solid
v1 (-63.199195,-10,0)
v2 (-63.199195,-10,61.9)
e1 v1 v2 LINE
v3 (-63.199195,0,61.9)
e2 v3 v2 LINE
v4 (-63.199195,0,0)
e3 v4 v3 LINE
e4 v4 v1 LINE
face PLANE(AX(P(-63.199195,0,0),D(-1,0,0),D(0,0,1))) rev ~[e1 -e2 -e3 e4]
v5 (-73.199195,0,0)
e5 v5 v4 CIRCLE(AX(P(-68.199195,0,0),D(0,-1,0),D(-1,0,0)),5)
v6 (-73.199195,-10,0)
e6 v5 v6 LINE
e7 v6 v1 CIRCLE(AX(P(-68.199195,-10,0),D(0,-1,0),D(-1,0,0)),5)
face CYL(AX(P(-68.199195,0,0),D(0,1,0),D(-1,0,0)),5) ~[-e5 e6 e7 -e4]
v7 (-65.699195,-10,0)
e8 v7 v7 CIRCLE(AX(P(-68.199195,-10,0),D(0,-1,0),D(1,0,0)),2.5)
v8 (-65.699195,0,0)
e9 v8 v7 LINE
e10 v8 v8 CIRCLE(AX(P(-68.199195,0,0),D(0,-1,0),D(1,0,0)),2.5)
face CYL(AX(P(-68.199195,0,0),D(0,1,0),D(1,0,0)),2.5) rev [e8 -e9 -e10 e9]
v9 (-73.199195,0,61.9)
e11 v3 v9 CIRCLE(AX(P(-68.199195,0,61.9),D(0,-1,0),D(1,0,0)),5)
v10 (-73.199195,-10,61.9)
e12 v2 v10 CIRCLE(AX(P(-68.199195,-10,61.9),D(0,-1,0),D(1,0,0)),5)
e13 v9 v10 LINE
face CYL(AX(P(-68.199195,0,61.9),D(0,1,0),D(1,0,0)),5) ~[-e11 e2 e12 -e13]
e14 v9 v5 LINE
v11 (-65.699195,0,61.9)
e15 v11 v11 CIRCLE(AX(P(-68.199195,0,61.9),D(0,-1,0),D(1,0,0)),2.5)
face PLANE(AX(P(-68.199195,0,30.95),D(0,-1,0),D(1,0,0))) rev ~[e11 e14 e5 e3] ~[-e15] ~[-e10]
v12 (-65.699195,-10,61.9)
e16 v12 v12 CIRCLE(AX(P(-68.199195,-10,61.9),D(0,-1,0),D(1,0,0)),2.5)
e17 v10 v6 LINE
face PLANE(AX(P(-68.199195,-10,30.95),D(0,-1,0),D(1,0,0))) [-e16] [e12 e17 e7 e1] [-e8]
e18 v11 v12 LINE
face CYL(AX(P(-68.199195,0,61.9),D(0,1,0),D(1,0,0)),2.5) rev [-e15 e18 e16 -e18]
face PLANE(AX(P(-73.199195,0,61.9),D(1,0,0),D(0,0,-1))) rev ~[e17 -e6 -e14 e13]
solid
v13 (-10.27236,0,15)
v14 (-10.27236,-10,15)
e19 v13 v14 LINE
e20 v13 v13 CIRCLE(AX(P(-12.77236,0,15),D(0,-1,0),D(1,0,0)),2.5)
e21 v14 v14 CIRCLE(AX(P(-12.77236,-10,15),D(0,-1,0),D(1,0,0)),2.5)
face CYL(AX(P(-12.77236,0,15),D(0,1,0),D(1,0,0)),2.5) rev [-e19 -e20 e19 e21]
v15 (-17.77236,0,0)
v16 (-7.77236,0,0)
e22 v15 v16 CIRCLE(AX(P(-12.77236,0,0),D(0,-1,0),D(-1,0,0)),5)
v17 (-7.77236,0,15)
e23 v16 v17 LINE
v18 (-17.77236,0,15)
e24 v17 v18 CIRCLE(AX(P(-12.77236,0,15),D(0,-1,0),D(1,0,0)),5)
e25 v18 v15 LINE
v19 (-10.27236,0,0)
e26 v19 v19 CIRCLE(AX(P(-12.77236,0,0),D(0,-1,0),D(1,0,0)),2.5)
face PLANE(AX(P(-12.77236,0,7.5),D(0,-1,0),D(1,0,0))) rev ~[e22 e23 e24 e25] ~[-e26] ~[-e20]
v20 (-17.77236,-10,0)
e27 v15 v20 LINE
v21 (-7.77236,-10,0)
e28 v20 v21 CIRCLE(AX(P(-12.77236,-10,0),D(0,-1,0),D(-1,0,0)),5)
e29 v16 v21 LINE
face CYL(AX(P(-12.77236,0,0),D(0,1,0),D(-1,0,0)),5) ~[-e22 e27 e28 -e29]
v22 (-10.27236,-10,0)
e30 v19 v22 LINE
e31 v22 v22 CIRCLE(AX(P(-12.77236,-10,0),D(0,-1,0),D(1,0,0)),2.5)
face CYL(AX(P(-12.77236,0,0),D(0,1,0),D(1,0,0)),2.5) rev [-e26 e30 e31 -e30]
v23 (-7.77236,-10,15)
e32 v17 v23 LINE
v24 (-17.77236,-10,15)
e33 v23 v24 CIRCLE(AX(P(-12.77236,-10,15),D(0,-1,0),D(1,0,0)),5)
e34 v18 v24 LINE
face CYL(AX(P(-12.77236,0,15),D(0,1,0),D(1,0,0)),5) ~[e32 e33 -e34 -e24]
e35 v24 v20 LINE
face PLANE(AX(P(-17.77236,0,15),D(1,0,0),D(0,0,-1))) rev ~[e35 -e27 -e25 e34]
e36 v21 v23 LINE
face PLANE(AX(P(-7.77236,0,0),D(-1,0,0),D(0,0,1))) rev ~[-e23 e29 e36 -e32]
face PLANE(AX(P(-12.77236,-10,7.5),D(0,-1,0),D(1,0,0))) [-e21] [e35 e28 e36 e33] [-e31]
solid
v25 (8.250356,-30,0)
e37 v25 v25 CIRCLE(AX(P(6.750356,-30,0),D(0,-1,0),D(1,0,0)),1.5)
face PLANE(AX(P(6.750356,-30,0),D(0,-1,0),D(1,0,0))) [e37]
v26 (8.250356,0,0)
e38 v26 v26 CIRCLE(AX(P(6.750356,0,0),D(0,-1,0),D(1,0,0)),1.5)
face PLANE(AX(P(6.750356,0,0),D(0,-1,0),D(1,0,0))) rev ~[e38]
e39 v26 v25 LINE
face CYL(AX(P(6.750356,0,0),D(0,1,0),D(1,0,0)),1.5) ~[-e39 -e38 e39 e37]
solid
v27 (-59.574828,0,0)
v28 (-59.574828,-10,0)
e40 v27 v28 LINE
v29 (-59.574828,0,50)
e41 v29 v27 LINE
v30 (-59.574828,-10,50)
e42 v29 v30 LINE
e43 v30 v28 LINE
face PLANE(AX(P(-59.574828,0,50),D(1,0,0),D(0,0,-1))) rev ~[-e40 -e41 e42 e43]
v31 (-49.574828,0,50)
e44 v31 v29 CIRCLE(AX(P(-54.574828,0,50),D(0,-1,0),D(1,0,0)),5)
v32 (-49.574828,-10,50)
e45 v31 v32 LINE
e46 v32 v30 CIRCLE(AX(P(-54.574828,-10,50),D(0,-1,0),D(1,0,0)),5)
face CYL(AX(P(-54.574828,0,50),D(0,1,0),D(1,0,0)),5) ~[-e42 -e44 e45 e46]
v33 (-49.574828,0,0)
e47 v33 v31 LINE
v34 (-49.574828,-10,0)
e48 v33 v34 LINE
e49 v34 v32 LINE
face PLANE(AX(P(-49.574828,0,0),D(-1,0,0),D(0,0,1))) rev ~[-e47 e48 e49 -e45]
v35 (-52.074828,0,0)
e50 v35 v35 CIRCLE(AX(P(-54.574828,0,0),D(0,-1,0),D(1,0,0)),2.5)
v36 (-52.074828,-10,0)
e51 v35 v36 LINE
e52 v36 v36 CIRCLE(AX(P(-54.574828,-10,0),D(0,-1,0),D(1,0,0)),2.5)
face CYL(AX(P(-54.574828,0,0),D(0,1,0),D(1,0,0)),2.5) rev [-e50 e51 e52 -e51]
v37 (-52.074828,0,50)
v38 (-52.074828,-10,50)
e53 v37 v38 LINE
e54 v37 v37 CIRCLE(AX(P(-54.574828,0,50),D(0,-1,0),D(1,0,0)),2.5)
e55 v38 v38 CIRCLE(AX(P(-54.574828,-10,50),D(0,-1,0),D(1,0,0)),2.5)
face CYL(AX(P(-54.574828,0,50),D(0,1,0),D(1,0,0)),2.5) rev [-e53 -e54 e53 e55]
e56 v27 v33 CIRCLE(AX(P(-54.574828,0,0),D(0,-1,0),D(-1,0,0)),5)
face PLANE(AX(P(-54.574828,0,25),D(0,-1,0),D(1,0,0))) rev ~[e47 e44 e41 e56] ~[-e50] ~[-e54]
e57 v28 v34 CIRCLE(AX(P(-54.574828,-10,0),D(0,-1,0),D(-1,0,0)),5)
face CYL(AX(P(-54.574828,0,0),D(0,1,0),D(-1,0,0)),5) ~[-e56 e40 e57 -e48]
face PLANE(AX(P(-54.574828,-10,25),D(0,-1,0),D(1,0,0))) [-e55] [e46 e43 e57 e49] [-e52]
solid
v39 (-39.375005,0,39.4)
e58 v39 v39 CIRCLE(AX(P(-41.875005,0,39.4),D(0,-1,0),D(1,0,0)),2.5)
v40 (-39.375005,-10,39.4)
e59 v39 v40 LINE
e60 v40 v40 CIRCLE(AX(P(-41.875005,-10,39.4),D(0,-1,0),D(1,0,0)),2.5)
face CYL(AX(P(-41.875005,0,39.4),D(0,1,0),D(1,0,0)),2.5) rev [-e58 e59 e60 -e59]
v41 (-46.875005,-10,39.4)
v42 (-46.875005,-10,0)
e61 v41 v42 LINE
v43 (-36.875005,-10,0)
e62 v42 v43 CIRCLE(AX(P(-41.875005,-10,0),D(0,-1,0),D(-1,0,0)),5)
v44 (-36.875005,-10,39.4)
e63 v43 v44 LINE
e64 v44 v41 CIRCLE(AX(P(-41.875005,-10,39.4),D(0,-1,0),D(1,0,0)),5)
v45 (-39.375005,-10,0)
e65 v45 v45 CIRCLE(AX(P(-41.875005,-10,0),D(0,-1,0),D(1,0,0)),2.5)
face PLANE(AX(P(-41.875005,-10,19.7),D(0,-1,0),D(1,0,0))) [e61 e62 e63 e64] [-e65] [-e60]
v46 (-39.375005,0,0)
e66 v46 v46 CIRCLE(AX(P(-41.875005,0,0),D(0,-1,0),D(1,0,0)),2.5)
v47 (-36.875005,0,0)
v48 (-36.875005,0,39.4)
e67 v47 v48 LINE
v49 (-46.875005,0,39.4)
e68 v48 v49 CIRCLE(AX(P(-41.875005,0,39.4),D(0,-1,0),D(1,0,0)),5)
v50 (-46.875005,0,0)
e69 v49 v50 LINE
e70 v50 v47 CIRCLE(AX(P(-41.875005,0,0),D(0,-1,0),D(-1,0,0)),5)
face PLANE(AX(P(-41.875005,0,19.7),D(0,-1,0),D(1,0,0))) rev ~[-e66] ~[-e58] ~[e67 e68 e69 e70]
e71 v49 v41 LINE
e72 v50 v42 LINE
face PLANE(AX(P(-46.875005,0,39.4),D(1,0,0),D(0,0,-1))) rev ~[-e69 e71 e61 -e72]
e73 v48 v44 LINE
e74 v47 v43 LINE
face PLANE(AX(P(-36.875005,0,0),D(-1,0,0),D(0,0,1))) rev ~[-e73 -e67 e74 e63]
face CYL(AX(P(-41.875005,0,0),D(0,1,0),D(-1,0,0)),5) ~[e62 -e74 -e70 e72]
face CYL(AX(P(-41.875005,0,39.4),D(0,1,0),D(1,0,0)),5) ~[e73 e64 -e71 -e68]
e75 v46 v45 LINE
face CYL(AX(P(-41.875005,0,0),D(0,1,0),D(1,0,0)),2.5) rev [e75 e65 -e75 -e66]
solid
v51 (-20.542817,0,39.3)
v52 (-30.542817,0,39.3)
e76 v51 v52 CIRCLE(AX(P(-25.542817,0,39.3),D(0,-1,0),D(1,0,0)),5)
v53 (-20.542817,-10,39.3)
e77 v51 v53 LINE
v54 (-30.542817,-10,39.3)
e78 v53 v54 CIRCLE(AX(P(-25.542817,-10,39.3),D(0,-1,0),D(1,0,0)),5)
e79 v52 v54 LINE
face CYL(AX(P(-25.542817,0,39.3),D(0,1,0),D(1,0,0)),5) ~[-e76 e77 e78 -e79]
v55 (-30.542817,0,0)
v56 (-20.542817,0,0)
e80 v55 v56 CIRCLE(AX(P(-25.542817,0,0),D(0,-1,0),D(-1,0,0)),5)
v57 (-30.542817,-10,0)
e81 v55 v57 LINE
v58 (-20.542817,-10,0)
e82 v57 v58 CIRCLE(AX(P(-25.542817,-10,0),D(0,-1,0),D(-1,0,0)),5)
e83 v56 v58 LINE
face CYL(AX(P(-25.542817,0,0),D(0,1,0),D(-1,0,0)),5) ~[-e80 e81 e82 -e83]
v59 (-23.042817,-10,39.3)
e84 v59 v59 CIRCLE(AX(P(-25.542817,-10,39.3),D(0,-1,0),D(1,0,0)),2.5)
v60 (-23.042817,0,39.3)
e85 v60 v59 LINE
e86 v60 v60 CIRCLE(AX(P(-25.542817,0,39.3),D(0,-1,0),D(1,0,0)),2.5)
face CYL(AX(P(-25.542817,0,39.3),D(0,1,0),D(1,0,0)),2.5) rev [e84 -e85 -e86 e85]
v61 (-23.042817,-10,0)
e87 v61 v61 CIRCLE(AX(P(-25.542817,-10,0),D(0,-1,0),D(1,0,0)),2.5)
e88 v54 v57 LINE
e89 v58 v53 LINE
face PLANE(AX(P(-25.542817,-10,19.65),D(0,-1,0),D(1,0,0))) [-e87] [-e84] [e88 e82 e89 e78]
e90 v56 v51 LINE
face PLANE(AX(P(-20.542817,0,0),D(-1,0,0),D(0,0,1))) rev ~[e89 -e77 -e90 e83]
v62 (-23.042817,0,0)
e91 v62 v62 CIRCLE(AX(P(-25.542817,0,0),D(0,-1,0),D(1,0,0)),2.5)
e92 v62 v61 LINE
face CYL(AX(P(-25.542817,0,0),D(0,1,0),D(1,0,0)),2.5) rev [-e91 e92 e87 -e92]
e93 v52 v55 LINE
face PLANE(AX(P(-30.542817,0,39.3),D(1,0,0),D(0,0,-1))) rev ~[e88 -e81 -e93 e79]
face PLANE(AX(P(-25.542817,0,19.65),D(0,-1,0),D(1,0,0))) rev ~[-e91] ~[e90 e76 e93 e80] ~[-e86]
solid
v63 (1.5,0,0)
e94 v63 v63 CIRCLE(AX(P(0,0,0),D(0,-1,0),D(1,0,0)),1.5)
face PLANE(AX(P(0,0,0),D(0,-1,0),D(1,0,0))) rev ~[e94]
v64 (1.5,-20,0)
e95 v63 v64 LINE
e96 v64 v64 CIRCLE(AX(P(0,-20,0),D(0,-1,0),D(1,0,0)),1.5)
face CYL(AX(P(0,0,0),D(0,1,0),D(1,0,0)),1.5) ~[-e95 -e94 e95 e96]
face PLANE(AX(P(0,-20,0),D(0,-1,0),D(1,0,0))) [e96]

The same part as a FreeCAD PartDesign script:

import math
import FreeCAD as App
import Part
import Sketcher
Q = App.Units.Quantity

doc = App.newDocument("Part")
params = doc.addObject("Spreadsheet::Sheet", "Params")
for row, (alias, value) in enumerate([
    ("sketch1_diameter", "5 mm"),
    ("sketch1_radius", "5 mm"),
    ("sketch1_height", "15 mm"),
    ("pad1_length", "10 mm"),
    ("sketch2_diameter", "5 mm"),
    ("sketch2_radius", "5 mm"),
    ("sketch2_height", "39.3 mm"),
    ("pad2_length", "10 mm"),
    ("sketch3_diameter", "5 mm"),
    ("sketch3_radius", "5 mm"),
    ("sketch3_height", "39.4 mm"),
    ("pad3_length", "10 mm"),
    ("sketch4_diameter", "5 mm"),
    ("sketch4_radius", "5 mm"),
    ("sketch4_height", "50 mm"),
    ("pad4_length", "10 mm"),
    ("sketch5_diameter", "5 mm"),
    ("sketch5_radius", "5 mm"),
    ("sketch5_height", "61.9 mm"),
    ("pad5_length", "10 mm"),
    ("sketch6_diameter", "3 mm"),
    ("pad6_length", "20 mm"),
    ("sketch7_diameter", "3 mm"),
    ("pad7_length", "30 mm"),
], start=1):
    params.set(f"A{row}", alias)
    params.set(f"B{row}", "=" + value)
    params.setAlias(f"B{row}", alias)

body = doc.addObject("PartDesign::Body", "Body")

# Sketch on XZ plane
sketch1 = body.newObject("Sketcher::SketchObject", "Sketch")
sketch1.AttachmentSupport = (doc.getObject("XZ_Plane"), [""])
sketch1.MapMode = "FlatFace"
sketch1.addGeometry([
    Part.LineSegment(App.Vector(-17.8, 15, 0), App.Vector(-17.8, 0, 0)),  # 0
    Part.ArcOfCircle(Part.Circle(App.Vector(-12.8, 0, 0), App.Vector(0, 0, 1), 5), math.radians(180), math.radians(360)),  # 1
    Part.LineSegment(App.Vector(-7.8, 0, 0), App.Vector(-7.8, 15, 0)),  # 2
    Part.ArcOfCircle(Part.Circle(App.Vector(-12.8, 15, 0), App.Vector(0, 0, 1), 5), math.radians(0), math.radians(180)),  # 3
    Part.Circle(App.Vector(-12.8, 0, 0), App.Vector(0, 0, 1), 2.5),  # 4
    Part.Circle(App.Vector(-12.8, 15, 0), App.Vector(0, 0, 1), 2.5),  # 5
], False)
sketch1.addConstraint([
    Sketcher.Constraint("Tangent", 0, 2, 1, 1),
    Sketcher.Constraint("Tangent", 1, 2, 2, 1),
    Sketcher.Constraint("Tangent", 2, 2, 3, 1),
    Sketcher.Constraint("Tangent", 3, 2, 0, 1),
    Sketcher.Constraint("Vertical", 0),
    Sketcher.Constraint("Vertical", 2),
    Sketcher.Constraint("Coincident", 4, 3, 1, 3),
    Sketcher.Constraint("Coincident", 5, 3, 3, 3),
    Sketcher.Constraint("Equal", 4, 5),
    Sketcher.Constraint("PointOnObject", 1, 3, -1),
    Sketcher.Constraint("Diameter", 4, Q("5 mm")),
    Sketcher.Constraint("Radius", 1, Q("5 mm")),
    Sketcher.Constraint("DistanceY", 0, 2, 0, 1, Q("15 mm")),
    Sketcher.Constraint("DistanceX", 1, 3, -1, 1, Q("12.77236 mm")),
])
sketch1.setExpression("Constraints[10]", "Params.sketch1_diameter")
sketch1.setExpression("Constraints[11]", "Params.sketch1_radius")
sketch1.setExpression("Constraints[12]", "Params.sketch1_height")
pad1 = body.newObject("PartDesign::Pad", "Pad")
pad1.Profile = sketch1
pad1.setExpression("Length", "Params.pad1_length")
body2 = doc.addObject("PartDesign::Body", "Body001")

# Sketch on XZ plane
sketch2 = body2.newObject("Sketcher::SketchObject", "Sketch001")
sketch2.AttachmentSupport = (doc.getObject("XZ_Plane001"), [""])
sketch2.MapMode = "FlatFace"
sketch2.addGeometry([
    Part.LineSegment(App.Vector(-30.5, 39.3, 0), App.Vector(-30.5, 0, 0)),  # 0
    Part.ArcOfCircle(Part.Circle(App.Vector(-25.5, 0, 0), App.Vector(0, 0, 1), 5), math.radians(180), math.radians(360)),  # 1
    Part.LineSegment(App.Vector(-20.5, 0, 0), App.Vector(-20.5, 39.3, 0)),  # 2
    Part.ArcOfCircle(Part.Circle(App.Vector(-25.5, 39.3, 0), App.Vector(0, 0, 1), 5), math.radians(0), math.radians(180)),  # 3
    Part.Circle(App.Vector(-25.5, 0, 0), App.Vector(0, 0, 1), 2.5),  # 4
    Part.Circle(App.Vector(-25.5, 39.3, 0), App.Vector(0, 0, 1), 2.5),  # 5
], False)
sketch2.addConstraint([
    Sketcher.Constraint("Tangent", 0, 2, 1, 1),
    Sketcher.Constraint("Tangent", 1, 2, 2, 1),
    Sketcher.Constraint("Tangent", 2, 2, 3, 1),
    Sketcher.Constraint("Tangent", 3, 2, 0, 1),
    Sketcher.Constraint("Vertical", 0),
    Sketcher.Constraint("Vertical", 2),
    Sketcher.Constraint("Coincident", 4, 3, 1, 3),
    Sketcher.Constraint("Coincident", 5, 3, 3, 3),
    Sketcher.Constraint("Equal", 4, 5),
    Sketcher.Constraint("PointOnObject", 1, 3, -1),
    Sketcher.Constraint("Diameter", 4, Q("5 mm")),
    Sketcher.Constraint("Radius", 1, Q("5 mm")),
    Sketcher.Constraint("DistanceY", 0, 2, 0, 1, Q("39.3 mm")),
    Sketcher.Constraint("DistanceX", 1, 3, -1, 1, Q("25.542817 mm")),
])
sketch2.setExpression("Constraints[10]", "Params.sketch2_diameter")
sketch2.setExpression("Constraints[11]", "Params.sketch2_radius")
sketch2.setExpression("Constraints[12]", "Params.sketch2_height")
pad2 = body2.newObject("PartDesign::Pad", "Pad001")
pad2.Profile = sketch2
pad2.setExpression("Length", "Params.pad2_length")
body3 = doc.addObject("PartDesign::Body", "Body002")

# Sketch on XZ plane
sketch3 = body3.newObject("Sketcher::SketchObject", "Sketch002")
sketch3.AttachmentSupport = (doc.getObject("XZ_Plane002"), [""])
sketch3.MapMode = "FlatFace"
sketch3.addGeometry([
    Part.LineSegment(App.Vector(-46.9, 39.4, 0), App.Vector(-46.9, 0, 0)),  # 0
    Part.ArcOfCircle(Part.Circle(App.Vector(-41.9, 0, 0), App.Vector(0, 0, 1), 5), math.radians(180), math.radians(360)),  # 1
    Part.LineSegment(App.Vector(-36.9, 0, 0), App.Vector(-36.9, 39.4, 0)),  # 2
    Part.ArcOfCircle(Part.Circle(App.Vector(-41.9, 39.4, 0), App.Vector(0, 0, 1), 5), math.radians(0), math.radians(180)),  # 3
    Part.Circle(App.Vector(-41.9, 0, 0), App.Vector(0, 0, 1), 2.5),  # 4
    Part.Circle(App.Vector(-41.9, 39.4, 0), App.Vector(0, 0, 1), 2.5),  # 5
], False)
sketch3.addConstraint([
    Sketcher.Constraint("Tangent", 0, 2, 1, 1),
    Sketcher.Constraint("Tangent", 1, 2, 2, 1),
    Sketcher.Constraint("Tangent", 2, 2, 3, 1),
    Sketcher.Constraint("Tangent", 3, 2, 0, 1),
    Sketcher.Constraint("Vertical", 0),
    Sketcher.Constraint("Vertical", 2),
    Sketcher.Constraint("Coincident", 4, 3, 1, 3),
    Sketcher.Constraint("Coincident", 5, 3, 3, 3),
    Sketcher.Constraint("Equal", 4, 5),
    Sketcher.Constraint("PointOnObject", 1, 3, -1),
    Sketcher.Constraint("Diameter", 4, Q("5 mm")),
    Sketcher.Constraint("Radius", 1, Q("5 mm")),
    Sketcher.Constraint("DistanceY", 0, 2, 0, 1, Q("39.4 mm")),
    Sketcher.Constraint("DistanceX", 1, 3, -1, 1, Q("41.875005 mm")),
])
sketch3.setExpression("Constraints[10]", "Params.sketch3_diameter")
sketch3.setExpression("Constraints[11]", "Params.sketch3_radius")
sketch3.setExpression("Constraints[12]", "Params.sketch3_height")
pad3 = body3.newObject("PartDesign::Pad", "Pad002")
pad3.Profile = sketch3
pad3.setExpression("Length", "Params.pad3_length")
body4 = doc.addObject("PartDesign::Body", "Body003")

# Sketch on XZ plane
sketch4 = body4.newObject("Sketcher::SketchObject", "Sketch003")
sketch4.AttachmentSupport = (doc.getObject("XZ_Plane003"), [""])
sketch4.MapMode = "FlatFace"
sketch4.addGeometry([
    Part.LineSegment(App.Vector(-59.6, 50, 0), App.Vector(-59.6, 0, 0)),  # 0
    Part.ArcOfCircle(Part.Circle(App.Vector(-54.6, 0, 0), App.Vector(0, 0, 1), 5), math.radians(180), math.radians(360)),  # 1
    Part.LineSegment(App.Vector(-49.6, 0, 0), App.Vector(-49.6, 50, 0)),  # 2
    Part.ArcOfCircle(Part.Circle(App.Vector(-54.6, 50, 0), App.Vector(0, 0, 1), 5), math.radians(0), math.radians(180)),  # 3
    Part.Circle(App.Vector(-54.6, 0, 0), App.Vector(0, 0, 1), 2.5),  # 4
    Part.Circle(App.Vector(-54.6, 50, 0), App.Vector(0, 0, 1), 2.5),  # 5
], False)
sketch4.addConstraint([
    Sketcher.Constraint("Tangent", 0, 2, 1, 1),
    Sketcher.Constraint("Tangent", 1, 2, 2, 1),
    Sketcher.Constraint("Tangent", 2, 2, 3, 1),
    Sketcher.Constraint("Tangent", 3, 2, 0, 1),
    Sketcher.Constraint("Vertical", 0),
    Sketcher.Constraint("Vertical", 2),
    Sketcher.Constraint("Coincident", 4, 3, 1, 3),
    Sketcher.Constraint("Coincident", 5, 3, 3, 3),
    Sketcher.Constraint("Equal", 4, 5),
    Sketcher.Constraint("PointOnObject", 1, 3, -1),
    Sketcher.Constraint("Diameter", 4, Q("5 mm")),
    Sketcher.Constraint("Radius", 1, Q("5 mm")),
    Sketcher.Constraint("DistanceY", 0, 2, 0, 1, Q("50 mm")),
    Sketcher.Constraint("DistanceX", 1, 3, -1, 1, Q("54.574828 mm")),
])
sketch4.setExpression("Constraints[10]", "Params.sketch4_diameter")
sketch4.setExpression("Constraints[11]", "Params.sketch4_radius")
sketch4.setExpression("Constraints[12]", "Params.sketch4_height")
pad4 = body4.newObject("PartDesign::Pad", "Pad003")
pad4.Profile = sketch4
pad4.setExpression("Length", "Params.pad4_length")
body5 = doc.addObject("PartDesign::Body", "Body004")

# Sketch on XZ plane
sketch5 = body5.newObject("Sketcher::SketchObject", "Sketch004")
sketch5.AttachmentSupport = (doc.getObject("XZ_Plane004"), [""])
sketch5.MapMode = "FlatFace"
sketch5.addGeometry([
    Part.LineSegment(App.Vector(-73.2, 61.9, 0), App.Vector(-73.2, 0, 0)),  # 0
    Part.ArcOfCircle(Part.Circle(App.Vector(-68.2, 0, 0), App.Vector(0, 0, 1), 5), math.radians(180), math.radians(360)),  # 1
    Part.LineSegment(App.Vector(-63.2, 0, 0), App.Vector(-63.2, 61.9, 0)),  # 2
    Part.ArcOfCircle(Part.Circle(App.Vector(-68.2, 61.9, 0), App.Vector(0, 0, 1), 5), math.radians(0), math.radians(180)),  # 3
    Part.Circle(App.Vector(-68.2, 0, 0), App.Vector(0, 0, 1), 2.5),  # 4
    Part.Circle(App.Vector(-68.2, 61.9, 0), App.Vector(0, 0, 1), 2.5),  # 5
], False)
sketch5.addConstraint([
    Sketcher.Constraint("Tangent", 0, 2, 1, 1),
    Sketcher.Constraint("Tangent", 1, 2, 2, 1),
    Sketcher.Constraint("Tangent", 2, 2, 3, 1),
    Sketcher.Constraint("Tangent", 3, 2, 0, 1),
    Sketcher.Constraint("Vertical", 0),
    Sketcher.Constraint("Vertical", 2),
    Sketcher.Constraint("Coincident", 4, 3, 1, 3),
    Sketcher.Constraint("Coincident", 5, 3, 3, 3),
    Sketcher.Constraint("Equal", 4, 5),
    Sketcher.Constraint("PointOnObject", 1, 3, -1),
    Sketcher.Constraint("Diameter", 4, Q("5 mm")),
    Sketcher.Constraint("Radius", 1, Q("5 mm")),
    Sketcher.Constraint("DistanceY", 0, 2, 0, 1, Q("61.9 mm")),
    Sketcher.Constraint("DistanceX", 1, 3, -1, 1, Q("68.199195 mm")),
])
sketch5.setExpression("Constraints[10]", "Params.sketch5_diameter")
sketch5.setExpression("Constraints[11]", "Params.sketch5_radius")
sketch5.setExpression("Constraints[12]", "Params.sketch5_height")
pad5 = body5.newObject("PartDesign::Pad", "Pad004")
pad5.Profile = sketch5
pad5.setExpression("Length", "Params.pad5_length")
body6 = doc.addObject("PartDesign::Body", "Body005")

# Sketch on XZ plane
sketch6 = body6.newObject("Sketcher::SketchObject", "Sketch005")
sketch6.AttachmentSupport = (doc.getObject("XZ_Plane005"), [""])
sketch6.MapMode = "FlatFace"
sketch6.addGeometry(Part.Circle(App.Vector(0, 0, 0), App.Vector(0, 0, 1), 1.5), False)
sketch6.addConstraint([
    Sketcher.Constraint("Coincident", 0, 3, -1, 1),
    Sketcher.Constraint("Diameter", 0, Q("3 mm")),
])
sketch6.setExpression("Constraints[1]", "Params.sketch6_diameter")
pad6 = body6.newObject("PartDesign::Pad", "Pad005")
pad6.Profile = sketch6
pad6.setExpression("Length", "Params.pad6_length")
body7 = doc.addObject("PartDesign::Body", "Body006")

# Sketch on XZ plane
sketch7 = body7.newObject("Sketcher::SketchObject", "Sketch006")
sketch7.AttachmentSupport = (doc.getObject("XZ_Plane006"), [""])
sketch7.MapMode = "FlatFace"
sketch7.addGeometry(Part.Circle(App.Vector(6.8, 0, 0), App.Vector(0, 0, 1), 1.5), False)
sketch7.addConstraint([
    Sketcher.Constraint("PointOnObject", 0, 3, -1),
    Sketcher.Constraint("Diameter", 0, Q("3 mm")),
    Sketcher.Constraint("DistanceX", -1, 1, 0, 3, Q("6.750356 mm")),
])
sketch7.setExpression("Constraints[1]", "Params.sketch7_diameter")
pad7 = body7.newObject("PartDesign::Pad", "Pad006")
pad7.Profile = sketch7
pad7.setExpression("Length", "Params.pad7_length")

doc.recompute()
